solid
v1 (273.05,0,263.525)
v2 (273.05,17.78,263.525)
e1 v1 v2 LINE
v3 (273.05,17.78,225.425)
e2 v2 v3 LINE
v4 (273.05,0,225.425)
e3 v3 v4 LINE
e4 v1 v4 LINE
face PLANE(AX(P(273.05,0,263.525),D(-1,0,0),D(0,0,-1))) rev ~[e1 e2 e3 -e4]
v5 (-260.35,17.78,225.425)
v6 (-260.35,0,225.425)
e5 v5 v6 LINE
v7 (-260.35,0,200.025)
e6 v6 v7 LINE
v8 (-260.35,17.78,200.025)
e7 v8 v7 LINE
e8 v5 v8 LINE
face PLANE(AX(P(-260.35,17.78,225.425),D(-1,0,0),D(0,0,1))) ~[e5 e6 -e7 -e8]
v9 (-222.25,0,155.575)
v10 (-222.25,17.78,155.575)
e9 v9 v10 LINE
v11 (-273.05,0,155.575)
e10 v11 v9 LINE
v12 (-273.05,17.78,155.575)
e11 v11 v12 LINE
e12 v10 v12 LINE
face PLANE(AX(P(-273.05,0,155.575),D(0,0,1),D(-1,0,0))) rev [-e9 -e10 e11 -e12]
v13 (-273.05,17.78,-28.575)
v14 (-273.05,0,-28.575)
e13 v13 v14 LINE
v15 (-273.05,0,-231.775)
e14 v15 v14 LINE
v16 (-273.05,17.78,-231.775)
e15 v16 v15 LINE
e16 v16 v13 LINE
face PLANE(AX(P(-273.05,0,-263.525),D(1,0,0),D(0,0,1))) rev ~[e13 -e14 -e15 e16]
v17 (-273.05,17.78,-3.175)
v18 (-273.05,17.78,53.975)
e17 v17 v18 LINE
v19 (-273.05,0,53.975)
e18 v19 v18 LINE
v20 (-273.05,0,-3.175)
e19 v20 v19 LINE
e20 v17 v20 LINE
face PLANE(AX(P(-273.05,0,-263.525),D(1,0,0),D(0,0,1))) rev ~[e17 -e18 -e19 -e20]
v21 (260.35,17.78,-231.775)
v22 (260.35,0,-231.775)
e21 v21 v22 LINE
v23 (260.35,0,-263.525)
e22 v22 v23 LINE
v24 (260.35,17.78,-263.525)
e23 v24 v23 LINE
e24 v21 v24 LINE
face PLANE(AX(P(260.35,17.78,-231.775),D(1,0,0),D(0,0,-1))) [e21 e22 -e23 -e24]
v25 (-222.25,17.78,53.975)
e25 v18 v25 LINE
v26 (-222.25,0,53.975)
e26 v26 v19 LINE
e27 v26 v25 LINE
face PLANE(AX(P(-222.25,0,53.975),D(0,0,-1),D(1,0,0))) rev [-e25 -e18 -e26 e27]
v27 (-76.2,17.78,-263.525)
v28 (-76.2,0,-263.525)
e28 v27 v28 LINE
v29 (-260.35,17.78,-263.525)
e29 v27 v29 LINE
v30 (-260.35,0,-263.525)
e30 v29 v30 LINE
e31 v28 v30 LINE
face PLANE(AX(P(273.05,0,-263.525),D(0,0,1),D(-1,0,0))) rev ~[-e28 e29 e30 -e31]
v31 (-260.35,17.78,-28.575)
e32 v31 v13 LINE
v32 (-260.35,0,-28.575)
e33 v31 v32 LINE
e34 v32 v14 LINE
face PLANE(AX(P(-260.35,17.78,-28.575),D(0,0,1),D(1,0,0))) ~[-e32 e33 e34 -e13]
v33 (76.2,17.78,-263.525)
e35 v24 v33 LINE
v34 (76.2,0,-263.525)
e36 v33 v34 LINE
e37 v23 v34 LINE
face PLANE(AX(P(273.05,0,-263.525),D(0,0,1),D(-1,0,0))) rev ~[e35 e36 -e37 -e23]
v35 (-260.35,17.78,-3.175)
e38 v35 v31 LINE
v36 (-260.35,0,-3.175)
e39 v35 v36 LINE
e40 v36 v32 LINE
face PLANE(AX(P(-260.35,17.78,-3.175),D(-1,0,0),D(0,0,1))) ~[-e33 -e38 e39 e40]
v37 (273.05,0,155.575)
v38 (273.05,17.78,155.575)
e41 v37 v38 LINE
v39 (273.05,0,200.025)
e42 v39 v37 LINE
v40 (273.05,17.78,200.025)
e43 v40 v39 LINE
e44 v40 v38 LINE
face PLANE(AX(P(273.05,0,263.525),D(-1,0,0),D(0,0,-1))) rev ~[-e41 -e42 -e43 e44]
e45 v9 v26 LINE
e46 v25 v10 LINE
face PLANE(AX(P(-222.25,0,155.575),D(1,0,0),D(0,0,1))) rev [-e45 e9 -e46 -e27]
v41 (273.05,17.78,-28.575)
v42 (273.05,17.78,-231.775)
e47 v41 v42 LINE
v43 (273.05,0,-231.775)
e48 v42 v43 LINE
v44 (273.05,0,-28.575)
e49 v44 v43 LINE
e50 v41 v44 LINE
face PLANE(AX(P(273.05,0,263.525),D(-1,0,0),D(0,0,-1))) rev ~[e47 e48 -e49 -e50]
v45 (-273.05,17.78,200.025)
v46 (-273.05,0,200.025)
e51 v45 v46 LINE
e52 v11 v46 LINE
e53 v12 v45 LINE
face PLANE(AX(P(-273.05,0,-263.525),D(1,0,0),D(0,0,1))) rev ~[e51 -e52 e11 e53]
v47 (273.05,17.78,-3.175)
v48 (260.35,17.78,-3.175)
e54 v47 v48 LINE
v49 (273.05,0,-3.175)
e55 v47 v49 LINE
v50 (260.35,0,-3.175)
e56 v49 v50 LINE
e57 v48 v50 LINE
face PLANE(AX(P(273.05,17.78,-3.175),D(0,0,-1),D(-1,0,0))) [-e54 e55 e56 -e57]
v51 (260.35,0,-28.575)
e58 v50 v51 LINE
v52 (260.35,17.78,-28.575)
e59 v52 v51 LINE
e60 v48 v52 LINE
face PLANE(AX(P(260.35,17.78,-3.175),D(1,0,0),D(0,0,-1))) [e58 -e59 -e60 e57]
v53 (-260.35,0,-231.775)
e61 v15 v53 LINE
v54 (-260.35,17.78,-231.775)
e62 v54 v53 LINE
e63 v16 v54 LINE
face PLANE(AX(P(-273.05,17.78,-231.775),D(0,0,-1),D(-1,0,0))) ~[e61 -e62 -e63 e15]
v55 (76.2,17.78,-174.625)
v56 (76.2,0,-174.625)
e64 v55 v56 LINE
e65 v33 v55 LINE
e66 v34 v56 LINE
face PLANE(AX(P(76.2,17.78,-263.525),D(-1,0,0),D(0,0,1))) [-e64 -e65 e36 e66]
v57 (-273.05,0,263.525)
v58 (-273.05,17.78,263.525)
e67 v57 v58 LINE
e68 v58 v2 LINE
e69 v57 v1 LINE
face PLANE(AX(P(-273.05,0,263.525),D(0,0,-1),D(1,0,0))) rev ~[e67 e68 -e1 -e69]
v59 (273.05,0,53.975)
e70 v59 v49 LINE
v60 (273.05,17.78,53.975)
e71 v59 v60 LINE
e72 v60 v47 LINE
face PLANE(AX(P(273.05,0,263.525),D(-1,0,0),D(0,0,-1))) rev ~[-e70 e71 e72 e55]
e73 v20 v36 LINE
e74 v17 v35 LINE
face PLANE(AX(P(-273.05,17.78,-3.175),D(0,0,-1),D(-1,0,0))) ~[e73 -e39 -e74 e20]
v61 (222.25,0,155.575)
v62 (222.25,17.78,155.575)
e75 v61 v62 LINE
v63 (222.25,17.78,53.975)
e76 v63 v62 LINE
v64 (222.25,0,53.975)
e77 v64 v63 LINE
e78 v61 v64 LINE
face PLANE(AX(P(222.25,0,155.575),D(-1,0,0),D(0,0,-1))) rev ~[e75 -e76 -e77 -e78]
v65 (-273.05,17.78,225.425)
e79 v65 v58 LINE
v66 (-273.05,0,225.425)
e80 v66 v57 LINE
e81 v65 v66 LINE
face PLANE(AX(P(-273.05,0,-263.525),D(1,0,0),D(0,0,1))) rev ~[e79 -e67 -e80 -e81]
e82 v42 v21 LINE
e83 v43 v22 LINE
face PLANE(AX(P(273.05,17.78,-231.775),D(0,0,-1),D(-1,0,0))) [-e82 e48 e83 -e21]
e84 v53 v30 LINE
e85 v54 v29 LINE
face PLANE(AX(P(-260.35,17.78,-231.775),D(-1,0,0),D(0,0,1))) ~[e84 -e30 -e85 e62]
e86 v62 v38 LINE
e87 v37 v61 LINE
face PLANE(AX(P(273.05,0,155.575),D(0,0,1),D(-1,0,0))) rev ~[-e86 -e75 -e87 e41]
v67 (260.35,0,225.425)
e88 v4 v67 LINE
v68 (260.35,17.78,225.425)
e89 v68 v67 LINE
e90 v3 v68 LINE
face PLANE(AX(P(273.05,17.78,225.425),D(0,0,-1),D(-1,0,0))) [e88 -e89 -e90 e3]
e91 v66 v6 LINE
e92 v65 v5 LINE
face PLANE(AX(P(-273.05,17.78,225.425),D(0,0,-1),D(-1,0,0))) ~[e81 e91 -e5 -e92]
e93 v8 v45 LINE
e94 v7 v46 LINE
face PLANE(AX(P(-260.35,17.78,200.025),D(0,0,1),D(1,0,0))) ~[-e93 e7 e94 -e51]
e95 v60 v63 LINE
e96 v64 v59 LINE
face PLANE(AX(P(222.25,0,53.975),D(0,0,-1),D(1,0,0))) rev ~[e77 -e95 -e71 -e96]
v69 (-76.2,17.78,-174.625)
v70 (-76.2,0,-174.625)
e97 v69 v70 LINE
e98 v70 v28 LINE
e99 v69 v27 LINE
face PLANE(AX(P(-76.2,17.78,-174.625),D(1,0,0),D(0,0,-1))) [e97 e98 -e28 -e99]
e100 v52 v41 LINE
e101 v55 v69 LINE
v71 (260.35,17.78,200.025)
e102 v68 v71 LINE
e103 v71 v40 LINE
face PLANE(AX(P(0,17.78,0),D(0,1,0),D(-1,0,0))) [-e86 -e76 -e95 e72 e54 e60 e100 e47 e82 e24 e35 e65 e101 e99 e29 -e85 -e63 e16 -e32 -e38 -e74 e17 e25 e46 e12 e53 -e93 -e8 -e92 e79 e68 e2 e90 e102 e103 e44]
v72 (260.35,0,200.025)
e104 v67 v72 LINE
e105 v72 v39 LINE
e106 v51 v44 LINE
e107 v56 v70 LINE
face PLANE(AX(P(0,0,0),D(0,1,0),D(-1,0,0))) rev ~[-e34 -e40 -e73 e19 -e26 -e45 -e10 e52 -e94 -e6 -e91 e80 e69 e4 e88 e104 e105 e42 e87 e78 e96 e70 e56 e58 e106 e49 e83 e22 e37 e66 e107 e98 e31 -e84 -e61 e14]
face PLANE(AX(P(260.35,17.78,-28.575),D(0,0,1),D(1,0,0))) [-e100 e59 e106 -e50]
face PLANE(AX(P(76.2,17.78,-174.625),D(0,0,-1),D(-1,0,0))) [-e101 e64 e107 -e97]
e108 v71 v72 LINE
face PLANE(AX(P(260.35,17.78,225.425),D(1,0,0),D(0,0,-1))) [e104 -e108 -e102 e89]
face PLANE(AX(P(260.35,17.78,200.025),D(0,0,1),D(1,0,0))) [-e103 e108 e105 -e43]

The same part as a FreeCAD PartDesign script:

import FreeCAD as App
import Part
import Sketcher
Q = App.Units.Quantity


def add_polygon(sketch, points):
    """Adds a closed chain of lines whose ends are joined by coincident constraints."""
    first, n = sketch.GeometryCount, len(points)
    for a, b in zip(points, points[1:] + points[:1]):
        sketch.addGeometry(Part.LineSegment(App.Vector(*a, 0), App.Vector(*b, 0)), False)
    for i in range(n):
        sketch.addConstraint(Sketcher.Constraint("Coincident", first + i, 2, first + (i + 1) % n, 1))

doc = App.newDocument("Part")
body = doc.addObject("PartDesign::Body", "Body")

sketch1 = body.newObject("Sketcher::SketchObject", "Sketch")
sketch1.AttachmentSupport = (doc.getObject("XZ_Plane"), [""])
sketch1.MapMode = "FlatFace"
add_polygon(sketch1, [(-273.05, 263.525), (273.05, 263.525), (273.05, -263.525), (-273.05, -263.525)])
sketch1.addConstraint(Sketcher.Constraint("Horizontal", 0))
sketch1.addConstraint(Sketcher.Constraint("Vertical", 1))
sketch1.addConstraint(Sketcher.Constraint("Horizontal", 2))
sketch1.addConstraint(Sketcher.Constraint("Vertical", 3))
sketch1.addConstraint(Sketcher.Constraint("Symmetric", 0, 2, 2, 2, -1, 1))
sketch1.addConstraint(Sketcher.Constraint("DistanceX", 0, 1, 0, 2, Q("21.5 in")))
sketch1.addConstraint(Sketcher.Constraint("DistanceY", 1, 2, 1, 1, Q("20.75 in")))
pad1 = body.newObject("PartDesign::Pad", "Pad")
pad1.Profile = sketch1
pad1.Length = Q("0.7 in")
pad1.Reversed = True

sketch2 = body.newObject("Sketcher::SketchObject", "Sketch001")
sketch2.AttachmentSupport = (doc.getObject("XZ_Plane"), [""])
sketch2.MapMode = "FlatFace"
add_polygon(sketch2, [(273.05, 53.975), (273.05, 155.575), (222.25, 155.575), (222.25, 53.975)])
sketch2.addConstraint(Sketcher.Constraint("Vertical", 0))
sketch2.addConstraint(Sketcher.Constraint("Horizontal", 1))
sketch2.addConstraint(Sketcher.Constraint("Vertical", 2))
sketch2.addConstraint(Sketcher.Constraint("Horizontal", 3))
sketch2.addConstraint(Sketcher.Constraint("DistanceX", 1, 2, 1, 1, Q("2 in")))
sketch2.addConstraint(Sketcher.Constraint("DistanceY", 0, 1, 0, 2, Q("4 in")))
sketch2.addConstraint(Sketcher.Constraint("DistanceX", -1, 1, 0, 2, Q("10.75 in")))
sketch2.addConstraint(Sketcher.Constraint("DistanceY", -1, 1, 0, 2, Q("6.125 in")))
pocket1 = body.newObject("PartDesign::Pocket", "Pocket")
pocket1.Profile = sketch2
pocket1.Type = "ThroughAll"
doc.recompute()

mirrored = body.newObject("PartDesign::Mirrored", "Mirrored")
mirrored.Originals = [pocket1]
mirrored.MirrorPlane = (doc.getObject("YZ_Plane"), [""])
body.Tip = mirrored

sketch3 = body.newObject("Sketcher::SketchObject", "Sketch002")
sketch3.AttachmentSupport = (doc.getObject("XZ_Plane"), [""])
sketch3.MapMode = "FlatFace"
sketch3.AttachmentOffset = App.Placement(App.Vector(0, 0, -0.7 * 25.4), App.Rotation())
add_polygon(sketch3, [(260.35, 225.425), (273.05, 225.425), (273.05, 200.025), (260.35, 200.025)])
sketch3.addConstraint(Sketcher.Constraint("Horizontal", 0))
sketch3.addConstraint(Sketcher.Constraint("Vertical", 1))
sketch3.addConstraint(Sketcher.Constraint("Horizontal", 2))
sketch3.addConstraint(Sketcher.Constraint("Vertical", 3))
sketch3.addConstraint(Sketcher.Constraint("DistanceY", 1, 2, 1, 1, Q("1 in")))
sketch3.addConstraint(Sketcher.Constraint("DistanceX", 0, 1, 0, 2, Q("0.5 in")))
sketch3.addConstraint(Sketcher.Constraint("DistanceX", -1, 1, 0, 2, Q("10.75 in")))
sketch3.addConstraint(Sketcher.Constraint("DistanceY", -1, 1, 0, 2, Q("8.875 in")))
pocket2 = body.newObject("PartDesign::Pocket", "Pocket001")
pocket2.Profile = sketch3
pocket2.Type = "ThroughAll"
pocket2.Reversed = True
doc.recompute()

mirrored2 = body.newObject("PartDesign::Mirrored", "Mirrored001")
mirrored2.Originals = [pocket2]
mirrored2.MirrorPlane = (doc.getObject("YZ_Plane"), [""])
body.Tip = mirrored2

sketch4 = body.newObject("Sketcher::SketchObject", "Sketch003")
sketch4.AttachmentSupport = (doc.getObject("XZ_Plane"), [""])
sketch4.MapMode = "FlatFace"
sketch4.AttachmentOffset = App.Placement(App.Vector(0, 0, -0.7 * 25.4), App.Rotation())
add_polygon(sketch4, [(260.35, -3.175), (273.05, -3.175), (273.05, -28.575), (260.35, -28.575)])
sketch4.addConstraint(Sketcher.Constraint("Horizontal", 0))
sketch4.addConstraint(Sketcher.Constraint("Vertical", 1))
sketch4.addConstraint(Sketcher.Constraint("Horizontal", 2))
sketch4.addConstraint(Sketcher.Constraint("Vertical", 3))
sketch4.addConstraint(Sketcher.Constraint("DistanceY", 1, 2, 1, 1, Q("1 in")))
sketch4.addConstraint(Sketcher.Constraint("DistanceX", 0, 1, 0, 2, Q("0.5 in")))
sketch4.addConstraint(Sketcher.Constraint("DistanceX", -1, 1, 0, 2, Q("10.75 in")))
sketch4.addConstraint(Sketcher.Constraint("DistanceY", 0, 2, -1, 1, Q("0.125 in")))
pocket3 = body.newObject("PartDesign::Pocket", "Pocket002")
pocket3.Profile = sketch4
pocket3.Type = "ThroughAll"
pocket3.Reversed = True
doc.recompute()

mirrored3 = body.newObject("PartDesign::Mirrored", "Mirrored002")
mirrored3.Originals = [pocket3]
mirrored3.MirrorPlane = (doc.getObject("YZ_Plane"), [""])
body.Tip = mirrored3

sketch5 = body.newObject("Sketcher::SketchObject", "Sketch004")
sketch5.AttachmentSupport = (doc.getObject("XZ_Plane"), [""])
sketch5.MapMode = "FlatFace"
sketch5.AttachmentOffset = App.Placement(App.Vector(0, 0, -0.7 * 25.4), App.Rotation())
add_polygon(sketch5, [(260.35, -231.775), (273.05, -231.775), (273.05, -263.525), (260.35, -263.525)])
sketch5.addConstraint(Sketcher.Constraint("Horizontal", 0))
sketch5.addConstraint(Sketcher.Constraint("Vertical", 1))
sketch5.addConstraint(Sketcher.Constraint("Horizontal", 2))
sketch5.addConstraint(Sketcher.Constraint("Vertical", 3))
sketch5.addConstraint(Sketcher.Constraint("DistanceX", 0, 1, 0, 2, Q("0.5 in")))
sketch5.addConstraint(Sketcher.Constraint("DistanceY", 1, 2, 1, 1, Q("1.25 in")))
sketch5.addConstraint(Sketcher.Constraint("DistanceX", -1, 1, 0, 2, Q("10.75 in")))
sketch5.addConstraint(Sketcher.Constraint("DistanceY", 0, 2, -1, 1, Q("9.125 in")))
pocket4 = body.newObject("PartDesign::Pocket", "Pocket003")
pocket4.Profile = sketch5
pocket4.Type = "ThroughAll"
pocket4.Reversed = True
doc.recompute()

mirrored4 = body.newObject("PartDesign::Mirrored", "Mirrored003")
mirrored4.Originals = [pocket4]
mirrored4.MirrorPlane = (doc.getObject("YZ_Plane"), [""])
body.Tip = mirrored4

sketch6 = body.newObject("Sketcher::SketchObject", "Sketch005")
sketch6.AttachmentSupport = (doc.getObject("XZ_Plane"), [""])
sketch6.MapMode = "FlatFace"
sketch6.AttachmentOffset = App.Placement(App.Vector(0, 0, -0.7 * 25.4), App.Rotation())
add_polygon(sketch6, [(76.2, -263.525), (-76.2, -263.525), (-76.2, -174.625), (76.2, -174.625)])
sketch6.addConstraint(Sketcher.Constraint("Horizontal", 0))
sketch6.addConstraint(Sketcher.Constraint("Vertical", 1))
sketch6.addConstraint(Sketcher.Constraint("Horizontal", 2))
sketch6.addConstraint(Sketcher.Constraint("Vertical", 3))
sketch6.addConstraint(Sketcher.Constraint("DistanceY", 1, 1, 1, 2, Q("3.5 in")))
sketch6.addConstraint(Sketcher.Constraint("DistanceX", 0, 2, -1, 1, Q("3 in")))
sketch6.addConstraint(Sketcher.Constraint("DistanceX", -1, 1, 2, 2, Q("3 in")))
sketch6.addConstraint(Sketcher.Constraint("DistanceY", 0, 2, -1, 1, Q("10.375 in")))
pocket5 = body.newObject("PartDesign::Pocket", "Pocket004")
pocket5.Profile = sketch6
pocket5.Type = "ThroughAll"
pocket5.Reversed = True

doc.recompute()
